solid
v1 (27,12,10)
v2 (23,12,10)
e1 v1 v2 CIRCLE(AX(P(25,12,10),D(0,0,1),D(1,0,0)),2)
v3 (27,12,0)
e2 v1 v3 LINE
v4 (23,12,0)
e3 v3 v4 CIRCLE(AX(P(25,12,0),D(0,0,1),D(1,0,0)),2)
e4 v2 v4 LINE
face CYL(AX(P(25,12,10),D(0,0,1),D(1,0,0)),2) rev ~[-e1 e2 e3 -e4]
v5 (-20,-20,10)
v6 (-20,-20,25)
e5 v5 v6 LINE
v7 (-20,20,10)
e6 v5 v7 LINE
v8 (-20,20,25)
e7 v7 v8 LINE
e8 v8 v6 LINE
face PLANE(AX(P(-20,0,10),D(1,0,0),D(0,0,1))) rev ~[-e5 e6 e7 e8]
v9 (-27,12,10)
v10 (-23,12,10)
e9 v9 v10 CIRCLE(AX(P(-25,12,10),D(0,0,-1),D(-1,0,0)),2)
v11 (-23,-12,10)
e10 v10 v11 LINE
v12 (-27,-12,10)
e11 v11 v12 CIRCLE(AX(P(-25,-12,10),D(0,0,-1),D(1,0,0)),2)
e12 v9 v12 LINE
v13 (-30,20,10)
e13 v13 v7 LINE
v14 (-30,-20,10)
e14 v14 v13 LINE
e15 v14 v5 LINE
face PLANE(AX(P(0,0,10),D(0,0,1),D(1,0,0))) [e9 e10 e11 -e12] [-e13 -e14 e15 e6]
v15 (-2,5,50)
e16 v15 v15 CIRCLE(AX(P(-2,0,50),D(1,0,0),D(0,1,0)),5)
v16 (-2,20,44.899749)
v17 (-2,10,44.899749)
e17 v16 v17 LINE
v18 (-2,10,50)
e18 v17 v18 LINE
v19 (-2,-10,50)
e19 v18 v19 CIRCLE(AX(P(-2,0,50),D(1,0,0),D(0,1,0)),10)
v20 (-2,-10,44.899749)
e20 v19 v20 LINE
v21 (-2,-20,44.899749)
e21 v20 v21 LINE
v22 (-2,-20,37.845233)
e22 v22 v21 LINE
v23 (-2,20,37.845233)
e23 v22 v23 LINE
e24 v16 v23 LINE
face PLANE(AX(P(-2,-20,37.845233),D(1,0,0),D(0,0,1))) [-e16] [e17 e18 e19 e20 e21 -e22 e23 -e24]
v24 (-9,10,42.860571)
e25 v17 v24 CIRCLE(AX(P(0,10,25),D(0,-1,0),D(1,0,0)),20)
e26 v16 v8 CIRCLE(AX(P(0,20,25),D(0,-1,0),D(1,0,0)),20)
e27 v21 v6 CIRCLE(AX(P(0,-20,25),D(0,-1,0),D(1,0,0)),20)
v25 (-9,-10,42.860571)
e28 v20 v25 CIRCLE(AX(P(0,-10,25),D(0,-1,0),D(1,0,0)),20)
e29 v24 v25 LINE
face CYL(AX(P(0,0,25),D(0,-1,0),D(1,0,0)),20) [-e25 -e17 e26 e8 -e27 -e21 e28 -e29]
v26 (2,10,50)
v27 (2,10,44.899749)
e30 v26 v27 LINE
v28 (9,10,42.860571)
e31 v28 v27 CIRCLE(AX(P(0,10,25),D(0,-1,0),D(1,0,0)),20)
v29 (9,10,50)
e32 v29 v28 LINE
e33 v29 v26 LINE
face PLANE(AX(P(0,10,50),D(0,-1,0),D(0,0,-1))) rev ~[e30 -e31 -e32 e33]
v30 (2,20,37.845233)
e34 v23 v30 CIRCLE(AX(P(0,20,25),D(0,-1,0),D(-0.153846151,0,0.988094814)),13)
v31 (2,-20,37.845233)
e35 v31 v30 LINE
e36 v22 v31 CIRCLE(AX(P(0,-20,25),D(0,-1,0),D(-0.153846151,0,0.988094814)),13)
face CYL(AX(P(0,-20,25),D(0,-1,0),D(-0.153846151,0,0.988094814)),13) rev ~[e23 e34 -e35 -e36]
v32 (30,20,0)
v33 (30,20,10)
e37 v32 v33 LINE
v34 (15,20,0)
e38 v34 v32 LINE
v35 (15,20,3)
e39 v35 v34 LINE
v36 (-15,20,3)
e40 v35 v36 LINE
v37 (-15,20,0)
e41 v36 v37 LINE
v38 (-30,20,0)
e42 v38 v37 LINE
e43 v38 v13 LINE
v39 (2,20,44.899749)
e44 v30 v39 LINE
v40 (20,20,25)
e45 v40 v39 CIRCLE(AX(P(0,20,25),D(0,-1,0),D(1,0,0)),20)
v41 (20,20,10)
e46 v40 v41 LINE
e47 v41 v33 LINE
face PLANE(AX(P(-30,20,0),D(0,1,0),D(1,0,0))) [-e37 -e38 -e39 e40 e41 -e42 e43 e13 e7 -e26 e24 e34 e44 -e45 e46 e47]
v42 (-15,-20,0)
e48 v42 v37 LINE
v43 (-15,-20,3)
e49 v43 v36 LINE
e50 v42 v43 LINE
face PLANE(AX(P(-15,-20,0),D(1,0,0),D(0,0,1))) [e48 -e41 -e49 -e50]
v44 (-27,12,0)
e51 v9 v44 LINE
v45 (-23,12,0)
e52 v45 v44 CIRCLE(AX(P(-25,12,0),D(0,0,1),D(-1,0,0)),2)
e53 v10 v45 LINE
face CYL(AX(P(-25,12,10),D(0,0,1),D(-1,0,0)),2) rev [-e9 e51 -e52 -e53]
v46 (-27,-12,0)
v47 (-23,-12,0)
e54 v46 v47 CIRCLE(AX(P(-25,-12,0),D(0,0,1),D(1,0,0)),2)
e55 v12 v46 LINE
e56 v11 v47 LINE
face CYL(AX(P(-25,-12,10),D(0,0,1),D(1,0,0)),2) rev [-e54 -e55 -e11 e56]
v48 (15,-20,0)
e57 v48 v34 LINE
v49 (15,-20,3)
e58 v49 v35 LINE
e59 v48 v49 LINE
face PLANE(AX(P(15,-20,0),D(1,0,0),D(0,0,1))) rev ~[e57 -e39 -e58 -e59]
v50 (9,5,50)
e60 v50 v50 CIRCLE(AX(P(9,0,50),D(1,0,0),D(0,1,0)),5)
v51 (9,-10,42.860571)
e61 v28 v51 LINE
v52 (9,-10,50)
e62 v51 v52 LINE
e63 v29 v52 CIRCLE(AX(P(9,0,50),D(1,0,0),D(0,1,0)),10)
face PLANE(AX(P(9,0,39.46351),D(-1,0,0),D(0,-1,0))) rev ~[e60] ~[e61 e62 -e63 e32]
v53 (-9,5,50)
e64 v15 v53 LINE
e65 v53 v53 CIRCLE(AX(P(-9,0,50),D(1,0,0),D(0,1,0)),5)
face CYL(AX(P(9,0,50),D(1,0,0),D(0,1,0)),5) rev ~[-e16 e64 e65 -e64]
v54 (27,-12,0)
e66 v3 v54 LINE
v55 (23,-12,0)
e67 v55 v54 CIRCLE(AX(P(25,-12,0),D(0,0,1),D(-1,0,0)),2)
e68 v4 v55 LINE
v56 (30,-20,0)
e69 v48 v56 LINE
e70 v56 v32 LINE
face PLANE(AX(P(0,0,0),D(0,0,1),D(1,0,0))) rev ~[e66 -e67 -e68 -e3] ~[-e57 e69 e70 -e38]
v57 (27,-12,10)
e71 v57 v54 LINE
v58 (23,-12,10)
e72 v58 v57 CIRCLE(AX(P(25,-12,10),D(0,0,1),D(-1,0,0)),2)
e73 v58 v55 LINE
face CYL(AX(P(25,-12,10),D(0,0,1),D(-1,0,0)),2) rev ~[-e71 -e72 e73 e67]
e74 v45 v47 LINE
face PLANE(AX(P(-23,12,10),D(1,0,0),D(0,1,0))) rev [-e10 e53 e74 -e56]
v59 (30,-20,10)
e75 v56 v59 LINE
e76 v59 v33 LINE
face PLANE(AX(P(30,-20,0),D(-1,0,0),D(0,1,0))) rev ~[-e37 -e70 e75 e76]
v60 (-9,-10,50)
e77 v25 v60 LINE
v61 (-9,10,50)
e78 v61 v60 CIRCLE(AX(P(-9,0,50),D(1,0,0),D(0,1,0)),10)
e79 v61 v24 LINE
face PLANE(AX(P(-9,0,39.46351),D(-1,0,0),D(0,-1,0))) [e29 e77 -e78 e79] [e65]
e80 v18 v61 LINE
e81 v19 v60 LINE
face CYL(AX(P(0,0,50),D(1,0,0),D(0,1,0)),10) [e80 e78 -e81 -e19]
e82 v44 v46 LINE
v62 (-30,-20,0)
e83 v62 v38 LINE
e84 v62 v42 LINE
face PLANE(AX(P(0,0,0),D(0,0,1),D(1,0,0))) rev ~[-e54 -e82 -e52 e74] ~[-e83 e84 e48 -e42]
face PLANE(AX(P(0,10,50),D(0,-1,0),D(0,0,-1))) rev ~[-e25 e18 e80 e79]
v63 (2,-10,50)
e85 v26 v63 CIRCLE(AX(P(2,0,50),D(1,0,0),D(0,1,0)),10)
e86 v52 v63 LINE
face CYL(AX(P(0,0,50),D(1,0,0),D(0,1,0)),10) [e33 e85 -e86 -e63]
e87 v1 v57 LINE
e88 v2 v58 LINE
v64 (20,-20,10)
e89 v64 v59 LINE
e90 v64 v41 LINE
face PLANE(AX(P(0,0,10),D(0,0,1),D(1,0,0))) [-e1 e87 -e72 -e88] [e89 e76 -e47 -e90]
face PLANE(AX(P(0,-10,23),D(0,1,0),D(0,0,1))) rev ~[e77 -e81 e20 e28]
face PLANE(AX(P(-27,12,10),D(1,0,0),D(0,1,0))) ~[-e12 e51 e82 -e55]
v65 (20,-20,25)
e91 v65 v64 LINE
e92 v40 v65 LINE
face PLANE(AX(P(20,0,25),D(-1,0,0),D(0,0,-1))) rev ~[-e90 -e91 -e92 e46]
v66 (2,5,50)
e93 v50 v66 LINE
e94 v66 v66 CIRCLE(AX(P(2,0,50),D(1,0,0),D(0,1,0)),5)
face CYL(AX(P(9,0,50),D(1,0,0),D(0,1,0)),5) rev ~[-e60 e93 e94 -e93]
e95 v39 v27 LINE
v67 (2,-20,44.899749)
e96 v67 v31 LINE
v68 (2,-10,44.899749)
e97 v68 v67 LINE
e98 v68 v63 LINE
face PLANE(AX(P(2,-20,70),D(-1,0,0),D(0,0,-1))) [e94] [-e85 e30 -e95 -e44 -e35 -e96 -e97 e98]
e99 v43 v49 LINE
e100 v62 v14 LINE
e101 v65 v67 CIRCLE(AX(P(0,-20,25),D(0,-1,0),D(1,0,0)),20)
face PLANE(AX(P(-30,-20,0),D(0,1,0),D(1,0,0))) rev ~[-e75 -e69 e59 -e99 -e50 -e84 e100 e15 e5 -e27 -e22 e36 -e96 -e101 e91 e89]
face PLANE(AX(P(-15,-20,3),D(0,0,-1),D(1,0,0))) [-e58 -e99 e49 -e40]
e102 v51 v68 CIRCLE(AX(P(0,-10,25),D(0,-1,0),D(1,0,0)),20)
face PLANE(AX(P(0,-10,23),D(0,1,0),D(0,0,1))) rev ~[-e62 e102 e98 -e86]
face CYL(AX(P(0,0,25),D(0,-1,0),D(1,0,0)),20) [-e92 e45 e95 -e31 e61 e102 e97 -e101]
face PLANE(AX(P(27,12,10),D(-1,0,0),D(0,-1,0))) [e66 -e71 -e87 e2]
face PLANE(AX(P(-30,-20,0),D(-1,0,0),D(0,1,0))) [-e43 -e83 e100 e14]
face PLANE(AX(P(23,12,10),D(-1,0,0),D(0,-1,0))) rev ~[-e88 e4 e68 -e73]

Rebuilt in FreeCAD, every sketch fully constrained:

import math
import FreeCAD as App
import Part
import Sketcher
from FreeCAD import Vector
Q = App.Units.Quantity

doc = App.newDocument("Part")
body = doc.addObject("PartDesign::Body", "Body")

sketch1 = doc.addObject("Sketcher::SketchObject", "Sketch")
body.addObject(sketch1)
sketch1.AttachmentSupport = (doc.XY_Plane, [""])
sketch1.MapMode = "FlatFace"
sketch1.addGeometry(Part.LineSegment(Vector(-30, 20, 0), Vector(-30, -20, 0)), False)
sketch1.addGeometry(Part.LineSegment(Vector(-30, -20, 0), Vector(30, -20, 0)), False)
sketch1.addGeometry(Part.LineSegment(Vector(30, -20, 0), Vector(30, 20, 0)), False)
sketch1.addGeometry(Part.LineSegment(Vector(30, 20, 0), Vector(-30, 20, 0)), False)
sketch1.addConstraint(Sketcher.Constraint("Coincident", 0, 2, 1, 1))
sketch1.addConstraint(Sketcher.Constraint("Coincident", 1, 2, 2, 1))
sketch1.addConstraint(Sketcher.Constraint("Coincident", 2, 2, 3, 1))
sketch1.addConstraint(Sketcher.Constraint("Coincident", 3, 2, 0, 1))
sketch1.addConstraint(Sketcher.Constraint("Vertical", 0))
sketch1.addConstraint(Sketcher.Constraint("Horizontal", 1))
sketch1.addConstraint(Sketcher.Constraint("Vertical", 2))
sketch1.addConstraint(Sketcher.Constraint("Horizontal", 3))
sketch1.addConstraint(Sketcher.Constraint("Symmetric", 0, 2, 2, 2, -1, 1))
sketch1.addConstraint(Sketcher.Constraint("DistanceX", 1, 1, 1, 2, Q("60 mm")))
sketch1.addConstraint(Sketcher.Constraint("DistanceY", 0, 2, 0, 1, Q("40 mm")))
pad1 = doc.addObject("PartDesign::Pad", "Pad")
body.addObject(pad1)
pad1.Profile = sketch1
pad1.Length = 10

sketch2 = doc.addObject("Sketcher::SketchObject", "Sketch001")
body.addObject(sketch2)
sketch2.AttachmentSupport = (doc.XZ_Plane, [""])
sketch2.MapMode = "FlatFace"
sketch2.addGeometry(Part.LineSegment(Vector(20, 10, 0), Vector(20, 25, 0)), False)
sketch2.addGeometry(Part.ArcOfCircle(Part.Circle(Vector(0, 25, 0), Vector(0, 0, 1), 20), math.radians(0), math.radians(180)), False)
sketch2.addGeometry(Part.LineSegment(Vector(-20, 25, 0), Vector(-20, 10, 0)), False)
sketch2.addGeometry(Part.LineSegment(Vector(-20, 10, 0), Vector(20, 10, 0)), False)
sketch2.addConstraint(Sketcher.Constraint("Tangent", 0, 2, 1, 1))
sketch2.addConstraint(Sketcher.Constraint("Tangent", 1, 2, 2, 1))
sketch2.addConstraint(Sketcher.Constraint("Coincident", 2, 2, 3, 1))
sketch2.addConstraint(Sketcher.Constraint("Coincident", 3, 2, 0, 1))
sketch2.addConstraint(Sketcher.Constraint("Vertical", 0))
sketch2.addConstraint(Sketcher.Constraint("Vertical", 2))
sketch2.addConstraint(Sketcher.Constraint("Horizontal", 3))
sketch2.addConstraint(Sketcher.Constraint("PointOnObject", 1, 3, -2))
sketch2.addConstraint(Sketcher.Constraint("Radius", 1, Q("20 mm")))
sketch2.addConstraint(Sketcher.Constraint("DistanceY", 0, 1, 0, 2, Q("15 mm")))
sketch2.addConstraint(Sketcher.Constraint("DistanceY", -1, 1, 1, 3, Q("25 mm")))
pad2 = doc.addObject("PartDesign::Pad", "Pad001")
body.addObject(pad2)
pad2.Profile = sketch2
pad2.Length = 40
pad2.Midplane = True

sketch3 = doc.addObject("Sketcher::SketchObject", "Sketch002")
body.addObject(sketch3)
sketch3.AttachmentSupport = (doc.YZ_Plane, [""])
sketch3.MapMode = "FlatFace"
sketch3.addGeometry(Part.LineSegment(Vector(-10, 50, 0), Vector(-10, 23, 0)), False)
sketch3.addGeometry(Part.LineSegment(Vector(-10, 23, 0), Vector(10, 23, 0)), False)
sketch3.addGeometry(Part.LineSegment(Vector(10, 23, 0), Vector(10, 50, 0)), False)
sketch3.addGeometry(Part.ArcOfCircle(Part.Circle(Vector(0, 50, 0), Vector(0, 0, 1), 10), math.radians(0), math.radians(180)), False)
sketch3.addConstraint(Sketcher.Constraint("Coincident", 0, 2, 1, 1))
sketch3.addConstraint(Sketcher.Constraint("Coincident", 1, 2, 2, 1))
sketch3.addConstraint(Sketcher.Constraint("Tangent", 2, 2, 3, 1))
sketch3.addConstraint(Sketcher.Constraint("Tangent", 3, 2, 0, 1))
sketch3.addConstraint(Sketcher.Constraint("Vertical", 0))
sketch3.addConstraint(Sketcher.Constraint("Horizontal", 1))
sketch3.addConstraint(Sketcher.Constraint("Vertical", 2))
sketch3.addConstraint(Sketcher.Constraint("PointOnObject", 3, 3, -2))
sketch3.addConstraint(Sketcher.Constraint("Radius", 3, Q("10 mm")))
sketch3.addConstraint(Sketcher.Constraint("DistanceY", 0, 2, 0, 1, Q("27 mm")))
sketch3.addConstraint(Sketcher.Constraint("DistanceY", -1, 1, 3, 3, Q("50 mm")))
pad3 = doc.addObject("PartDesign::Pad", "Pad002")
body.addObject(pad3)
pad3.Profile = sketch3
pad3.Length = 18
pad3.Midplane = True

sketch4 = doc.addObject("Sketcher::SketchObject", "Sketch003")
body.addObject(sketch4)
sketch4.AttachmentSupport = (doc.YZ_Plane, [""])
sketch4.MapMode = "FlatFace"
sketch4.AttachmentOffset = App.Placement(Vector(0, 0, 9), App.Rotation())
sketch4.addGeometry(Part.Circle(Vector(0, 50, 0), Vector(0, 0, 1), 5), False)
sketch4.addConstraint(Sketcher.Constraint("PointOnObject", 0, 3, -2))
sketch4.addConstraint(Sketcher.Constraint("Diameter", 0, Q("10 mm")))
sketch4.addConstraint(Sketcher.Constraint("DistanceY", -1, 1, 0, 3, Q("50 mm")))
pocket1 = doc.addObject("PartDesign::Pocket", "Pocket")
body.addObject(pocket1)
pocket1.Profile = sketch4
pocket1.Type = "ThroughAll"

sketch5 = doc.addObject("Sketcher::SketchObject", "Sketch004")
body.addObject(sketch5)
sketch5.AttachmentSupport = (doc.XZ_Plane, [""])
sketch5.MapMode = "FlatFace"
sketch5.AttachmentOffset = App.Placement(Vector(0, 0, 20), App.Rotation())
sketch5.addGeometry(Part.ArcOfCircle(Part.Circle(Vector(0, 25, 0), Vector(0, 0, 1), 13), math.radians(99), math.radians(441)), False)
sketch5.addGeometry(Part.LineSegment(Vector(2, 37.8, 0), Vector(2, 70, 0)), False)
sketch5.addGeometry(Part.LineSegment(Vector(2, 70, 0), Vector(-2, 70, 0)), False)
sketch5.addGeometry(Part.LineSegment(Vector(-2, 70, 0), Vector(-2, 37.8, 0)), False)
sketch5.addConstraint(Sketcher.Constraint("Coincident", 0, 2, 1, 1))
sketch5.addConstraint(Sketcher.Constraint("Coincident", 1, 2, 2, 1))
sketch5.addConstraint(Sketcher.Constraint("Coincident", 2, 2, 3, 1))
sketch5.addConstraint(Sketcher.Constraint("Coincident", 3, 2, 0, 1))
sketch5.addConstraint(Sketcher.Constraint("Vertical", 1))
sketch5.addConstraint(Sketcher.Constraint("Horizontal", 2))
sketch5.addConstraint(Sketcher.Constraint("Vertical", 3))
sketch5.addConstraint(Sketcher.Constraint("Symmetric", 0, 2, 3, 2, -2))
sketch5.addConstraint(Sketcher.Constraint("Radius", 0, Q("13 mm")))
sketch5.addConstraint(Sketcher.Constraint("DistanceX", 2, 2, 2, 1, Q("4 mm")))
sketch5.addConstraint(Sketcher.Constraint("DistanceY", -1, 1, 0, 3, Q("25 mm")))
sketch5.addConstraint(Sketcher.Constraint("DistanceY", -1, 1, 1, 2, Q("70 mm")))
pocket2 = doc.addObject("PartDesign::Pocket", "Pocket001")
body.addObject(pocket2)
pocket2.Profile = sketch5
pocket2.Type = "ThroughAll"

sketch6 = doc.addObject("Sketcher::SketchObject", "Sketch005")
body.addObject(sketch6)
sketch6.AttachmentSupport = (doc.XY_Plane, [""])
sketch6.MapMode = "FlatFace"
sketch6.AttachmentOffset = App.Placement(Vector(0, 0, 10), App.Rotation())
sketch6.addGeometry(Part.ArcOfCircle(Part.Circle(Vector(25, 12, 0), Vector(0, 0, 1), 2), math.radians(0), math.radians(180)), False)
sketch6.addGeometry(Part.LineSegment(Vector(23, 12, 0), Vector(23, -12, 0)), False)
sketch6.addGeometry(Part.ArcOfCircle(Part.Circle(Vector(25, -12, 0), Vector(0, 0, 1), 2), math.radians(180), math.radians(360)), False)
sketch6.addGeometry(Part.LineSegment(Vector(27, -12, 0), Vector(27, 12, 0)), False)
sketch6.addConstraint(Sketcher.Constraint("Tangent", 0, 2, 1, 1))
sketch6.addConstraint(Sketcher.Constraint("Tangent", 1, 2, 2, 1))
sketch6.addConstraint(Sketcher.Constraint("Tangent", 2, 2, 3, 1))
sketch6.addConstraint(Sketcher.Constraint("Tangent", 3, 2, 0, 1))
sketch6.addConstraint(Sketcher.Constraint("Vertical", 1))
sketch6.addConstraint(Sketcher.Constraint("Vertical", 3))
sketch6.addConstraint(Sketcher.Constraint("Radius", 0, Q("2 mm")))
sketch6.addConstraint(Sketcher.Constraint("DistanceY", 1, 2, 1, 1, Q("24 mm")))
sketch6.addConstraint(Sketcher.Constraint("DistanceX", -1, 1, 0, 3, Q("25 mm")))
sketch6.addConstraint(Sketcher.Constraint("DistanceY", -1, 1, 0, 3, Q("12 mm")))
pocket3 = doc.addObject("PartDesign::Pocket", "Pocket002")
body.addObject(pocket3)
pocket3.Profile = sketch6
pocket3.Type = "ThroughAll"
doc.recompute()

mirrored = doc.addObject("PartDesign::Mirrored", "Mirrored")
body.addObject(mirrored)
mirrored.Originals = [pocket3]
mirrored.MirrorPlane = (doc.YZ_Plane, [""])
body.Tip = mirrored

sketch7 = doc.addObject("Sketcher::SketchObject", "Sketch006")
body.addObject(sketch7)
sketch7.AttachmentSupport = (doc.XZ_Plane, [""])
sketch7.MapMode = "FlatFace"
sketch7.AttachmentOffset = App.Placement(Vector(0, 0, 20), App.Rotation())
sketch7.addGeometry(Part.LineSegment(Vector(-15, 3, 0), Vector(-15, 0, 0)), False)
sketch7.addGeometry(Part.LineSegment(Vector(-15, 0, 0), Vector(15, 0, 0)), False)
sketch7.addGeometry(Part.LineSegment(Vector(15, 0, 0), Vector(15, 3, 0)), False)
sketch7.addGeometry(Part.LineSegment(Vector(15, 3, 0), Vector(-15, 3, 0)), False)
sketch7.addConstraint(Sketcher.Constraint("Coincident", 0, 2, 1, 1))
sketch7.addConstraint(Sketcher.Constraint("Coincident", 1, 2, 2, 1))
sketch7.addConstraint(Sketcher.Constraint("Coincident", 2, 2, 3, 1))
sketch7.addConstraint(Sketcher.Constraint("Coincident", 3, 2, 0, 1))
sketch7.addConstraint(Sketcher.Constraint("Vertical", 0))
sketch7.addConstraint(Sketcher.Constraint("Horizontal", 1))
sketch7.addConstraint(Sketcher.Constraint("Vertical", 2))
sketch7.addConstraint(Sketcher.Constraint("Horizontal", 3))
sketch7.addConstraint(Sketcher.Constraint("Symmetric", 0, 2, 1, 2, -1, 1))
sketch7.addConstraint(Sketcher.Constraint("DistanceX", 1, 1, 1, 2, Q("30 mm")))
sketch7.addConstraint(Sketcher.Constraint("DistanceY", 0, 2, 0, 1, Q("3 mm")))
pocket4 = doc.addObject("PartDesign::Pocket", "Pocket003")
body.addObject(pocket4)
pocket4.Profile = sketch7
pocket4.Type = "ThroughAll"

doc.recompute()
